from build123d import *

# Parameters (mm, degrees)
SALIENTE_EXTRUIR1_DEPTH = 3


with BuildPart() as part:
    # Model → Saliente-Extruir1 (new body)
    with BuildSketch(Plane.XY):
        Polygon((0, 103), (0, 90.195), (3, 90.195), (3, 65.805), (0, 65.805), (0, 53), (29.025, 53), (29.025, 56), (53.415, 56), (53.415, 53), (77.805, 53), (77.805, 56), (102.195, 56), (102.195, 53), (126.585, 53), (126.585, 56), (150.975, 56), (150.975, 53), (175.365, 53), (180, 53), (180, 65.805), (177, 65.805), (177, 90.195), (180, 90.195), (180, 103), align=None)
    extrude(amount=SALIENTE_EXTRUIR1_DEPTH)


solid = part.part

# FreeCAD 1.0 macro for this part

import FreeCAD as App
import Part
import Sketcher

V = App.Vector
Q = App.Units.Quantity

doc = App.newDocument("Part")
body = doc.addObject("PartDesign::Body", "Body")

sketch1 = body.newObject("Sketcher::SketchObject", "Sketch")
sketch1.AttachmentSupport = (doc.getObject("XY_Plane"), [""])
sketch1.MapMode = "FlatFace"
sketch1.addGeometry([
    Part.LineSegment(V(0, 103, 0), V(0, 90.2, 0)),
    Part.LineSegment(V(0, 90.2, 0), V(3, 90.2, 0)),
    Part.LineSegment(V(3, 90.2, 0), V(3, 65.8, 0)),
    Part.LineSegment(V(3, 65.8, 0), V(0, 65.8, 0)),
    Part.LineSegment(V(0, 65.8, 0), V(0, 53, 0)),
    Part.LineSegment(V(0, 53, 0), V(29, 53, 0)),
    Part.LineSegment(V(29, 53, 0), V(29, 56, 0)),
    Part.LineSegment(V(29, 56, 0), V(53.4, 56, 0)),
    Part.LineSegment(V(53.4, 56, 0), V(53.4, 53, 0)),
    Part.LineSegment(V(53.4, 53, 0), V(77.8, 53, 0)),
    Part.LineSegment(V(77.8, 53, 0), V(77.8, 56, 0)),
    Part.LineSegment(V(77.8, 56, 0), V(102.2, 56, 0)),
    Part.LineSegment(V(102.2, 56, 0), V(102.2, 53, 0)),
    Part.LineSegment(V(102.2, 53, 0), V(126.6, 53, 0)),
    Part.LineSegment(V(126.6, 53, 0), V(126.6, 56, 0)),
    Part.LineSegment(V(126.6, 56, 0), V(151, 56, 0)),
    Part.LineSegment(V(151, 56, 0), V(151, 53, 0)),
    Part.LineSegment(V(151, 53, 0), V(180, 53, 0)),
    Part.LineSegment(V(180, 53, 0), V(180, 65.8, 0)),
    Part.LineSegment(V(180, 65.8, 0), V(177, 65.8, 0)),
    Part.LineSegment(V(177, 65.8, 0), V(177, 90.2, 0)),
    Part.LineSegment(V(177, 90.2, 0), V(180, 90.2, 0)),
    Part.LineSegment(V(180, 90.2, 0), V(180, 103, 0)),
    Part.LineSegment(V(180, 103, 0), V(0, 103, 0)),
], False)
sketch1.addConstraint([
    Sketcher.Constraint("Coincident", 0, 2, 1, 1),
    Sketcher.Constraint("Coincident", 1, 2, 2, 1),
    Sketcher.Constraint("Coincident", 2, 2, 3, 1),
    Sketcher.Constraint("Coincident", 3, 2, 4, 1),
    Sketcher.Constraint("Coincident", 4, 2, 5, 1),
    Sketcher.Constraint("Coincident", 5, 2, 6, 1),
    Sketcher.Constraint("Coincident", 6, 2, 7, 1),
    Sketcher.Constraint("Coincident", 7, 2, 8, 1),
    Sketcher.Constraint("Coincident", 8, 2, 9, 1),
    Sketcher.Constraint("Coincident", 9, 2, 10, 1),
    Sketcher.Constraint("Coincident", 10, 2, 11, 1),
    Sketcher.Constraint("Coincident", 11, 2, 12, 1),
    Sketcher.Constraint("Coincident", 12, 2, 13, 1),
    Sketcher.Constraint("Coincident", 13, 2, 14, 1),
    Sketcher.Constraint("Coincident", 14, 2, 15, 1),
    Sketcher.Constraint("Coincident", 15, 2, 16, 1),
    Sketcher.Constraint("Coincident", 16, 2, 17, 1),
    Sketcher.Constraint("Coincident", 17, 2, 18, 1),
    Sketcher.Constraint("Coincident", 18, 2, 19, 1),
    Sketcher.Constraint("Coincident", 19, 2, 20, 1),
    Sketcher.Constraint("Coincident", 20, 2, 21, 1),
    Sketcher.Constraint("Coincident", 21, 2, 22, 1),
    Sketcher.Constraint("Coincident", 22, 2, 23, 1),
    Sketcher.Constraint("Coincident", 23, 2, 0, 1),
    Sketcher.Constraint("Vertical", 0),
    Sketcher.Constraint("Horizontal", 1),
    Sketcher.Constraint("Vertical", 2),
    Sketcher.Constraint("Horizontal", 3),
    Sketcher.Constraint("Vertical", 4),
    Sketcher.Constraint("Horizontal", 5),
    Sketcher.Constraint("Vertical", 6),
    Sketcher.Constraint("Horizontal", 7),
    Sketcher.Constraint("Vertical", 8),
    Sketcher.Constraint("Horizontal", 9),
    Sketcher.Constraint("Vertical", 10),
    Sketcher.Constraint("Horizontal", 11),
    Sketcher.Constraint("Vertical", 12),
    Sketcher.Constraint("Horizontal", 13),
    Sketcher.Constraint("Vertical", 14),
    Sketcher.Constraint("Horizontal", 15),
    Sketcher.Constraint("Vertical", 16),
    Sketcher.Constraint("Horizontal", 17),
    Sketcher.Constraint("Vertical", 18),
    Sketcher.Constraint("Horizontal", 19),
    Sketcher.Constraint("Vertical", 20),
    Sketcher.Constraint("Horizontal", 21),
    Sketcher.Constraint("Vertical", 22),
    Sketcher.Constraint("Horizontal", 23),
    Sketcher.Constraint("PointOnObject", 0, 2, -2),
    Sketcher.Constraint("PointOnObject", 3, 2, -2),
    Sketcher.Constraint("Horizontal", 5, 2, 8, 2),
    Sketcher.Constraint("Horizontal", 7, 2, 10, 2),
    Sketcher.Constraint("Horizontal", 9, 2, 12, 2),
    Sketcher.Constraint("Horizontal", 11, 2, 14, 2),
    Sketcher.Constraint("Horizontal", 13, 2, 16, 2),
    Sketcher.Constraint("Horizontal", 3, 2, 18, 2),
    Sketcher.Constraint("Horizontal", 1, 2, 20, 2),
    Sketcher.Constraint("Vertical", 18, 2, 21, 2),
    Sketcher.Constraint("Equal", 7, 9),
    Sketcher.Constraint("Equal", 9, 11),
    Sketcher.Constraint("Equal", 11, 13),
    Sketcher.Constraint("Equal", 13, 15),
    Sketcher.Constraint("Equal", 5, 17),
    Sketcher.Constraint("Equal", 3, 19),
    Sketcher.Constraint("Equal", 15, 2),
    Sketcher.Constraint("Equal", 0, 4),
    Sketcher.Constraint("Equal", 21, 6),
    Sketcher.Constraint("DistanceX", 1, 1, 1, 2, Q("3 mm")),
    Sketcher.Constraint("DistanceX", 23, 2, 23, 1, Q("180 mm")),
    Sketcher.Constraint("DistanceY", -1, 1, 4, 2, Q("53 mm")),
    Sketcher.Constraint("DistanceY", -1, 1, 22, 2, Q("103 mm")),
    Sketcher.Constraint("DistanceX", 7, 1, 7, 2, Q("24.39 mm")),
])
pad1 = body.newObject("PartDesign::Pad", "Pad")
pad1.Profile = sketch1
pad1.Length = 3

doc.recompute()
